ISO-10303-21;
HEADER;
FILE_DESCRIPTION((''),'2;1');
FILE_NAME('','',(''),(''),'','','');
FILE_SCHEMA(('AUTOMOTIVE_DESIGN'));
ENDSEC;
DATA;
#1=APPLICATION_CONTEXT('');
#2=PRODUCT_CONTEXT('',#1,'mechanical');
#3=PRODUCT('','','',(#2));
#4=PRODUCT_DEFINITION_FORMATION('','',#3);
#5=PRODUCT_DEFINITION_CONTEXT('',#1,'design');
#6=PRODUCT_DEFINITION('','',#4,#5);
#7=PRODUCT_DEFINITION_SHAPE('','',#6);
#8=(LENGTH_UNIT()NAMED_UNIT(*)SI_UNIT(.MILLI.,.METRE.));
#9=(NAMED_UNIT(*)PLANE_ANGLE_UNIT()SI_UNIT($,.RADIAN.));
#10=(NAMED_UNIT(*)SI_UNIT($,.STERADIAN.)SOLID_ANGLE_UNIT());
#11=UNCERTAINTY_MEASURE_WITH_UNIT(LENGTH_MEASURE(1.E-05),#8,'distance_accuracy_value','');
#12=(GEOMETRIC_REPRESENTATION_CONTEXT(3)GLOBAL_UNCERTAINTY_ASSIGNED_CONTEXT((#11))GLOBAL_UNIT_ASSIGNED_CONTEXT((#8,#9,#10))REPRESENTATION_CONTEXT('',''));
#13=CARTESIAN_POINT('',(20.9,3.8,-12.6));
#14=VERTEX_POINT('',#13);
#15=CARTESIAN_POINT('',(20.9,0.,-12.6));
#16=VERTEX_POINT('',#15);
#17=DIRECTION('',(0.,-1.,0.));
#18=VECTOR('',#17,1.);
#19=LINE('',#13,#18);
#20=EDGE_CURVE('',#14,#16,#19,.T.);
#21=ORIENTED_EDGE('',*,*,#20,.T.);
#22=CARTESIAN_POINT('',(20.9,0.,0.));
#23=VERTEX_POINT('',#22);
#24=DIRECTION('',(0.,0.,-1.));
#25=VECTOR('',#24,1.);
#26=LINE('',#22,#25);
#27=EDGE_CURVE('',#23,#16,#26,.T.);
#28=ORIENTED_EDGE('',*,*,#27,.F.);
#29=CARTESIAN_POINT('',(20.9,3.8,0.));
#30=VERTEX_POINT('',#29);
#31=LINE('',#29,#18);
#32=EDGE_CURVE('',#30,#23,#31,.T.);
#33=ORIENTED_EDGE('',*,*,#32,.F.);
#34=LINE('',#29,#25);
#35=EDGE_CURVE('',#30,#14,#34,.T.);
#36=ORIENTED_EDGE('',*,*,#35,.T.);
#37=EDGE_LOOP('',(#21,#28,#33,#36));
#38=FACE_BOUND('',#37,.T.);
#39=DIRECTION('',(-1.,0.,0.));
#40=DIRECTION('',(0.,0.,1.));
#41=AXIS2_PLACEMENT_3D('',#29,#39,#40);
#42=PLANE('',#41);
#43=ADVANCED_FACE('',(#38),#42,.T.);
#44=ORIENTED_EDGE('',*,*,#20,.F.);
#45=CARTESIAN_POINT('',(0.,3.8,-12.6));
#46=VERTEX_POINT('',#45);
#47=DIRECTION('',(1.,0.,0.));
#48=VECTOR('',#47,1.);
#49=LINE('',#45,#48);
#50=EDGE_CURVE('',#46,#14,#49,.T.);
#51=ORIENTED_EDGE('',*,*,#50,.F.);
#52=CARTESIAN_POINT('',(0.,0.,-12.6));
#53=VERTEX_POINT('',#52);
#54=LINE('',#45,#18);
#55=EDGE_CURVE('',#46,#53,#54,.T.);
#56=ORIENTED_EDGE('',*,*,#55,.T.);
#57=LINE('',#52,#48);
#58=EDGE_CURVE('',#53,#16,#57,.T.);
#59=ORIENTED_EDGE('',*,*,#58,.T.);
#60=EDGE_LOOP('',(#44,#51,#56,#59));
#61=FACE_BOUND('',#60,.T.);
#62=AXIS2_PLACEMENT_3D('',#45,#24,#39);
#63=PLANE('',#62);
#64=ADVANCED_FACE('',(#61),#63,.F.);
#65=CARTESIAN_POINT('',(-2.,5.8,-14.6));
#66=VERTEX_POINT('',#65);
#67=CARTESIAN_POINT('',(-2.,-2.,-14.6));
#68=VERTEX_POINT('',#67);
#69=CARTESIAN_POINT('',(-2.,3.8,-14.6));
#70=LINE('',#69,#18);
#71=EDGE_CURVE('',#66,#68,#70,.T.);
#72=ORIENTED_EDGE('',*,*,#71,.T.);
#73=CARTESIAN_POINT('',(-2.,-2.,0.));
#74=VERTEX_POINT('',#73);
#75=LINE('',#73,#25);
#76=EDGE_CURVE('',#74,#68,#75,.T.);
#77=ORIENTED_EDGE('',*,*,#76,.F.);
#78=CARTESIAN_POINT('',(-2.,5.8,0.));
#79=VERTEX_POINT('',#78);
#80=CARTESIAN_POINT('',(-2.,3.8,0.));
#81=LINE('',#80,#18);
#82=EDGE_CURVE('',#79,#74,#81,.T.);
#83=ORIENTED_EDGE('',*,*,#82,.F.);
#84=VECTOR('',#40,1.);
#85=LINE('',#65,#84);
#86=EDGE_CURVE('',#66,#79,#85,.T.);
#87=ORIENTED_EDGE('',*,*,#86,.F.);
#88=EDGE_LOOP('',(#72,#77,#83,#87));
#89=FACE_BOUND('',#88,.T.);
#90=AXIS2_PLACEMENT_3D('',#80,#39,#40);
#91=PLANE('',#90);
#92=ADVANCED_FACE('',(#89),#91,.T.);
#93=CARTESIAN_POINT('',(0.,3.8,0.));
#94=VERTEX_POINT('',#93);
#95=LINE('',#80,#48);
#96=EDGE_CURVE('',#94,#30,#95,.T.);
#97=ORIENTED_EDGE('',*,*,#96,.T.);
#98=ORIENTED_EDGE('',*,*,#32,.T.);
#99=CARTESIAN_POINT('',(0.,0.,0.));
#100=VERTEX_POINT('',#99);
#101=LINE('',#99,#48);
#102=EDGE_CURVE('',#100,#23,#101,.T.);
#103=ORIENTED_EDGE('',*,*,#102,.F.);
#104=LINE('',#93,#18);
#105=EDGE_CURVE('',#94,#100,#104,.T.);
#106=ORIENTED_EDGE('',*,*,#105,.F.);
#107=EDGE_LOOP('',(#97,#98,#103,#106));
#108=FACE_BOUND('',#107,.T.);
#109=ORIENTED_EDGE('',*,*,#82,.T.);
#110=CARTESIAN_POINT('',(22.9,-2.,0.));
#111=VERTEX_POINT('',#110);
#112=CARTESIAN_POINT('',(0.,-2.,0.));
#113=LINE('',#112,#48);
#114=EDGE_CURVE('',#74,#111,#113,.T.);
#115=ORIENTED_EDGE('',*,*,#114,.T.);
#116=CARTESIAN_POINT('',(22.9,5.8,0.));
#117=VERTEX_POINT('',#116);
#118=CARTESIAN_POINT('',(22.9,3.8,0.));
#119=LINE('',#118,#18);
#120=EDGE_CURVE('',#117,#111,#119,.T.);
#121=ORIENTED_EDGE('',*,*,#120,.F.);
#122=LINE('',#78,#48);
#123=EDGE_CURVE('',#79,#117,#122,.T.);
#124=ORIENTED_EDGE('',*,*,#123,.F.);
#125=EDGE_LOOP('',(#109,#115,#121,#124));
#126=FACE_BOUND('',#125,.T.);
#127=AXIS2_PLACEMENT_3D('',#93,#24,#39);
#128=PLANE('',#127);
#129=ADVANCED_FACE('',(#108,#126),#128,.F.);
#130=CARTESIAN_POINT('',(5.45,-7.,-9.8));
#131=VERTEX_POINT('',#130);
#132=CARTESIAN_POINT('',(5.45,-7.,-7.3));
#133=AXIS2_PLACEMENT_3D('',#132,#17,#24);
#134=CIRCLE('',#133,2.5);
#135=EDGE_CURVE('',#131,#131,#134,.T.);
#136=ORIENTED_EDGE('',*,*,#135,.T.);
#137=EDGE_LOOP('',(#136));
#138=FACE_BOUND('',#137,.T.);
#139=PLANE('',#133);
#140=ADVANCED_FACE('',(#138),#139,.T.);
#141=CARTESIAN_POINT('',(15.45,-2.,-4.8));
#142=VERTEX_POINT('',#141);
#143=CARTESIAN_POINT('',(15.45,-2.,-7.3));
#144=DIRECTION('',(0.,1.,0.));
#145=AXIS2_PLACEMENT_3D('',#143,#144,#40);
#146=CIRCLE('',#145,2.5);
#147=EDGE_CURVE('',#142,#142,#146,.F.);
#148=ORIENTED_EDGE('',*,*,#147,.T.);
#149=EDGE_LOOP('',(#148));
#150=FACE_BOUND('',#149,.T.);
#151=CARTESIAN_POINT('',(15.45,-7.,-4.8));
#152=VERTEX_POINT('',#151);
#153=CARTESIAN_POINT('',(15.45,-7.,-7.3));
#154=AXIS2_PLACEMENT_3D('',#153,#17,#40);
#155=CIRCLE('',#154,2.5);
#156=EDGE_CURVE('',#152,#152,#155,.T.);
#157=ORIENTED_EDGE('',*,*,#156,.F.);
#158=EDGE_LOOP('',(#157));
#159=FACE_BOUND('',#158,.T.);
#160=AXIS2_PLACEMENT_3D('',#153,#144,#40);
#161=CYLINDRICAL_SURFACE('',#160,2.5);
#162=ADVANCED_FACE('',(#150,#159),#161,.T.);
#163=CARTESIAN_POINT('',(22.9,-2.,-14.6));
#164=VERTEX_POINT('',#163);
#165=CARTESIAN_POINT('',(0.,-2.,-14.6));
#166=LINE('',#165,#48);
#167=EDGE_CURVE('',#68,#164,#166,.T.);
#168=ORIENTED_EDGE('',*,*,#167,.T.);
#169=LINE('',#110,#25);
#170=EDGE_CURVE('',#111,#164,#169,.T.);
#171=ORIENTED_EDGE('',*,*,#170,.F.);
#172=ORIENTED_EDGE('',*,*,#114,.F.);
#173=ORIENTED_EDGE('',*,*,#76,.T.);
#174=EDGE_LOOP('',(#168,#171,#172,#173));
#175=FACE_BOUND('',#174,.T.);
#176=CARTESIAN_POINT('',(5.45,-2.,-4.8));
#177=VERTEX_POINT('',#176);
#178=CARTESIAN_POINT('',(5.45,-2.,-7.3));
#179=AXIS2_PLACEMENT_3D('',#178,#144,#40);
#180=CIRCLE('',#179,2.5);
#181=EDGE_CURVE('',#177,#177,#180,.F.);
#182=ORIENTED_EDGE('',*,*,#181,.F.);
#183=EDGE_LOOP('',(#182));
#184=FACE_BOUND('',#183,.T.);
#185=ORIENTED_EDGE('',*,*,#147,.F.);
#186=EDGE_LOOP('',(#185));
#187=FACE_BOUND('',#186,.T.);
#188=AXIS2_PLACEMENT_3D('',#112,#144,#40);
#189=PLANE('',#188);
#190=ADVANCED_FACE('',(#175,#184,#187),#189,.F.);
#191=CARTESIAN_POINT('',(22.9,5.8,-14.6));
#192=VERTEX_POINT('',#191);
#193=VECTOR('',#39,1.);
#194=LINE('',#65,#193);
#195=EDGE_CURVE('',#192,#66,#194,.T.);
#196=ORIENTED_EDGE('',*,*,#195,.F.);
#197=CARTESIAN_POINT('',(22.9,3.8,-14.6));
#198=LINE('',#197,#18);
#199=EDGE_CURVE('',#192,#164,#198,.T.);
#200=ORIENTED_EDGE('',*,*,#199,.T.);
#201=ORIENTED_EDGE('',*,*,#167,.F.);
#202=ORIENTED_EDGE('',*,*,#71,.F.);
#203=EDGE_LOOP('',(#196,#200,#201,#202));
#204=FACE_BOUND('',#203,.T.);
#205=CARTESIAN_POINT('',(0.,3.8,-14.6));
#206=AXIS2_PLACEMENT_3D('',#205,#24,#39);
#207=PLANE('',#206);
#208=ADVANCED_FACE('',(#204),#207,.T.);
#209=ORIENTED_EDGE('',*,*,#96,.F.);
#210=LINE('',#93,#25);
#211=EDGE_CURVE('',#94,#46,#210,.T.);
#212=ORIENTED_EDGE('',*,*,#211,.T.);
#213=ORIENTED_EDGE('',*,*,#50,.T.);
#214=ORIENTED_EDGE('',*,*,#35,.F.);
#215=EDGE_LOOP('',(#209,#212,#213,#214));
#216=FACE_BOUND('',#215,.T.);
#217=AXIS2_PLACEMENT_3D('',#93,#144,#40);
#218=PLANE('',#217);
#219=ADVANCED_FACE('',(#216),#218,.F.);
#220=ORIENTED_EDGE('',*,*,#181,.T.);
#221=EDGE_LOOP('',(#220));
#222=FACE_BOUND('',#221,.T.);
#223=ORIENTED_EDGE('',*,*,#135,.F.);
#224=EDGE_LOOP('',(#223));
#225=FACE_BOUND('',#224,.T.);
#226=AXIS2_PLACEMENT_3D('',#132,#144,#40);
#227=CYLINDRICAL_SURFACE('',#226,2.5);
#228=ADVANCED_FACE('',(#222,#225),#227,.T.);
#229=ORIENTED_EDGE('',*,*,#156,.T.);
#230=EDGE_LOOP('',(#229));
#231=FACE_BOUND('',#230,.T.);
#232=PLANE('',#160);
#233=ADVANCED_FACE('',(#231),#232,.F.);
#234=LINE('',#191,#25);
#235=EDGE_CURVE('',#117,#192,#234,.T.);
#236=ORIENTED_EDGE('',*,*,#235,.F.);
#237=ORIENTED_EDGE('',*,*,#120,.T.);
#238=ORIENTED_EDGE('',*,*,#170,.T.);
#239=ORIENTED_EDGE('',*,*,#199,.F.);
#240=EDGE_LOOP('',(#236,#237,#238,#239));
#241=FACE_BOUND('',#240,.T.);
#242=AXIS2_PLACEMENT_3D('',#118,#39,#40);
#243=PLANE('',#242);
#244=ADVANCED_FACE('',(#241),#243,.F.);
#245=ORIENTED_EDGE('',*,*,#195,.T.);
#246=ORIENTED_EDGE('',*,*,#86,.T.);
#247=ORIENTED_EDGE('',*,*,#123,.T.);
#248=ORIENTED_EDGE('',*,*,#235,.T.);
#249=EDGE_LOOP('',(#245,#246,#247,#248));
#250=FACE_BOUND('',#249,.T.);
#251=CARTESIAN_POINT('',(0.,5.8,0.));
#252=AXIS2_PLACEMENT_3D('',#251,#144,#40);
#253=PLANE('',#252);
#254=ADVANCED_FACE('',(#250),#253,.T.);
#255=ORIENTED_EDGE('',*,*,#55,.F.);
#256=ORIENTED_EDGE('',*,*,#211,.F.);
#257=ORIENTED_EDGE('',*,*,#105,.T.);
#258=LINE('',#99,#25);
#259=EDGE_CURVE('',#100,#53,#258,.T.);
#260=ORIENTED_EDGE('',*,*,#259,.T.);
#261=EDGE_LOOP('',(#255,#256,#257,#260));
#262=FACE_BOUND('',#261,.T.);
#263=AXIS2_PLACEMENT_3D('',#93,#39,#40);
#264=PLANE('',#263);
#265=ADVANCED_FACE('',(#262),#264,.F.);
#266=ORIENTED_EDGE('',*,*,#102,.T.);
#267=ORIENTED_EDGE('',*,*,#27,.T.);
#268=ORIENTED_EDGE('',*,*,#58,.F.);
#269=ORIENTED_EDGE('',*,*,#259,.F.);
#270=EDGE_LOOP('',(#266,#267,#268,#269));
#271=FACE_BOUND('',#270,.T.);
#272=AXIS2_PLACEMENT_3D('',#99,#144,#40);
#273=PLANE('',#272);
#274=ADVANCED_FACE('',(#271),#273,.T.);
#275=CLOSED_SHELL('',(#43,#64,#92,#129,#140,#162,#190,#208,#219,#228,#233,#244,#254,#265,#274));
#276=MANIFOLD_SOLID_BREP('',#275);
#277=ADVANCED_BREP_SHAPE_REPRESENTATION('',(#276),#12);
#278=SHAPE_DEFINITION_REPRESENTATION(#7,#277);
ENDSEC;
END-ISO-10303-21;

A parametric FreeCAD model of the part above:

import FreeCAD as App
import Part
import Sketcher
from FreeCAD import Vector

doc = App.newDocument("Part")
body = doc.addObject("PartDesign::Body", "Body")

# Sketch on XZ plane
sketch1 = body.newObject("Sketcher::SketchObject", "Sketch")
sketch1.AttachmentSupport = (doc.getObject("XZ_Plane"), [""])
sketch1.MapMode = "FlatFace"
sketch1.addGeometry(Part.LineSegment(Vector(22.9, -14.6, 0), Vector(-2, -14.6, 0)), False)
sketch1.addGeometry(Part.LineSegment(Vector(-2, -14.6, 0), Vector(-2, 0, 0)), False)
sketch1.addGeometry(Part.LineSegment(Vector(-2, 0, 0), Vector(0, 0, 0)), False)
sketch1.addGeometry(Part.LineSegment(Vector(0, 0, 0), Vector(0, -12.6, 0)), False)
sketch1.addGeometry(Part.LineSegment(Vector(0, -12.6, 0), Vector(20.9, -12.6, 0)), False)
sketch1.addGeometry(Part.LineSegment(Vector(20.9, -12.6, 0), Vector(20.9, 0, 0)), False)
sketch1.addGeometry(Part.LineSegment(Vector(20.9, 0, 0), Vector(22.9, 0, 0)), False)
sketch1.addGeometry(Part.LineSegment(Vector(22.9, 0, 0), Vector(22.9, -14.6, 0)), False)
sketch1.addConstraint(Sketcher.Constraint("Coincident", 0, 2, 1, 1))
sketch1.addConstraint(Sketcher.Constraint("Coincident", 1, 2, 2, 1))
sketch1.addConstraint(Sketcher.Constraint("Coincident", 2, 2, 3, 1))
sketch1.addConstraint(Sketcher.Constraint("Coincident", 3, 2, 4, 1))
sketch1.addConstraint(Sketcher.Constraint("Coincident", 4, 2, 5, 1))
sketch1.addConstraint(Sketcher.Constraint("Coincident", 5, 2, 6, 1))
sketch1.addConstraint(Sketcher.Constraint("Coincident", 6, 2, 7, 1))
sketch1.addConstraint(Sketcher.Constraint("Coincident", 7, 2, 0, 1))
sketch1.addConstraint(Sketcher.Constraint("Horizontal", 0))
sketch1.addConstraint(Sketcher.Constraint("Vertical", 1))
sketch1.addConstraint(Sketcher.Constraint("Horizontal", 2))
sketch1.addConstraint(Sketcher.Constraint("Vertical", 3))
sketch1.addConstraint(Sketcher.Constraint("Horizontal", 4))
sketch1.addConstraint(Sketcher.Constraint("Vertical", 5))
sketch1.addConstraint(Sketcher.Constraint("Horizontal", 6))
sketch1.addConstraint(Sketcher.Constraint("Vertical", 7))
sketch1.addConstraint(Sketcher.Constraint("Coincident", 2, 2, -1, 1))
sketch1.addConstraint(Sketcher.Constraint("PointOnObject", 5, 2, -1))
sketch1.addConstraint(Sketcher.Constraint("Equal", 2, 6))
sketch1.addConstraint(Sketcher.Constraint("DistanceX", 2, 1, 2, 2, 2.0))
sketch1.addConstraint(Sketcher.Constraint("DistanceX", 0, 2, 0, 1, 24.9))
sketch1.addConstraint(Sketcher.Constraint("DistanceY", 1, 1, 1, 2, 14.6))
sketch1.addConstraint(Sketcher.Constraint("DistanceY", 3, 2, 3, 1, 12.6))
pad1 = body.newObject("PartDesign::Pad", "Pad")
pad1.Profile = sketch1
pad1.Length = 3.8
pad1.Reversed = True

# Sketch on XZ plane
sketch2 = body.newObject("Sketcher::SketchObject", "Sketch001")
sketch2.AttachmentSupport = (doc.getObject("XZ_Plane"), [""])
sketch2.MapMode = "FlatFace"
sketch2.addGeometry(Part.LineSegment(Vector(22.9, 0, 0), Vector(22.9, -14.6, 0)), False)
sketch2.addGeometry(Part.LineSegment(Vector(22.9, -14.6, 0), Vector(-2, -14.6, 0)), False)
sketch2.addGeometry(Part.LineSegment(Vector(-2, -14.6, 0), Vector(-2, 0, 0)), False)
sketch2.addGeometry(Part.LineSegment(Vector(-2, 0, 0), Vector(22.9, 0, 0)), False)
sketch2.addConstraint(Sketcher.Constraint("Coincident", 0, 2, 1, 1))
sketch2.addConstraint(Sketcher.Constraint("Coincident", 1, 2, 2, 1))
sketch2.addConstraint(Sketcher.Constraint("Coincident", 2, 2, 3, 1))
sketch2.addConstraint(Sketcher.Constraint("Coincident", 3, 2, 0, 1))
sketch2.addConstraint(Sketcher.Constraint("Vertical", 0))
sketch2.addConstraint(Sketcher.Constraint("Horizontal", 1))
sketch2.addConstraint(Sketcher.Constraint("Vertical", 2))
sketch2.addConstraint(Sketcher.Constraint("Horizontal", 3))
sketch2.addConstraint(Sketcher.Constraint("PointOnObject", 2, 2, -1))
sketch2.addConstraint(Sketcher.Constraint("DistanceX", 1, 2, 1, 1, 24.9))
sketch2.addConstraint(Sketcher.Constraint("DistanceY", 0, 2, 0, 1, 14.6))
sketch2.addConstraint(Sketcher.Constraint("DistanceX", 1, 2, -1, 1, 2.0))
pad2 = body.newObject("PartDesign::Pad", "Pad001")
pad2.Profile = sketch2
pad2.Length = 2

# Sketch on XZ plane
sketch3 = body.newObject("Sketcher::SketchObject", "Sketch002")
sketch3.AttachmentSupport = (doc.getObject("XZ_Plane"), [""])
sketch3.MapMode = "FlatFace"
sketch3.AttachmentOffset = App.Placement(Vector(0, 0, 2), App.Rotation())
sketch3.addGeometry(Part.Circle(Vector(5.45, -7.3, 0), Vector(0, 0, 1), 2.5), False)
sketch3.addGeometry(Part.Circle(Vector(15.45, -7.3, 0), Vector(0, 0, 1), 2.5), False)
sketch3.addConstraint(Sketcher.Constraint("Equal", 0, 1))
sketch3.addConstraint(Sketcher.Constraint("Horizontal", 0, 3, 1, 3))
sketch3.addConstraint(Sketcher.Constraint("Diameter", 0, 5.0))
sketch3.addConstraint(Sketcher.Constraint("DistanceX", 0, 3, 1, 3, 10.0))
sketch3.addConstraint(Sketcher.Constraint("DistanceY", 0, 3, -1, 1, 7.3))
sketch3.addConstraint(Sketcher.Constraint("DistanceX", -1, 1, 0, 3, 5.45))
pad3 = body.newObject("PartDesign::Pad", "Pad002")
pad3.Profile = sketch3
pad3.Length = 5

# Sketch on XZ plane
sketch4 = body.newObject("Sketcher::SketchObject", "Sketch003")
sketch4.AttachmentSupport = (doc.getObject("XZ_Plane"), [""])
sketch4.MapMode = "FlatFace"
sketch4.AttachmentOffset = App.Placement(Vector(0, 0, -3.8), App.Rotation())
sketch4.addGeometry(Part.LineSegment(Vector(-2, -14.6, 0), Vector(-2, 0, 0)), False)
sketch4.addGeometry(Part.LineSegment(Vector(-2, 0, 0), Vector(22.9, 0, 0)), False)
sketch4.addGeometry(Part.LineSegment(Vector(22.9, 0, 0), Vector(22.9, -14.6, 0)), False)
sketch4.addGeometry(Part.LineSegment(Vector(22.9, -14.6, 0), Vector(-2, -14.6, 0)), False)
sketch4.addConstraint(Sketcher.Constraint("Coincident", 0, 2, 1, 1))
sketch4.addConstraint(Sketcher.Constraint("Coincident", 1, 2, 2, 1))
sketch4.addConstraint(Sketcher.Constraint("Coincident", 2, 2, 3, 1))
sketch4.addConstraint(Sketcher.Constraint("Coincident", 3, 2, 0, 1))
sketch4.addConstraint(Sketcher.Constraint("Vertical", 0))
sketch4.addConstraint(Sketcher.Constraint("Horizontal", 1))
sketch4.addConstraint(Sketcher.Constraint("Vertical", 2))
sketch4.addConstraint(Sketcher.Constraint("Horizontal", 3))
sketch4.addConstraint(Sketcher.Constraint("PointOnObject", 0, 2, -1))
sketch4.addConstraint(Sketcher.Constraint("DistanceX", 1, 1, 1, 2, 24.9))
sketch4.addConstraint(Sketcher.Constraint("DistanceY", 0, 1, 0, 2, 14.6))
sketch4.addConstraint(Sketcher.Constraint("DistanceX", 0, 2, -1, 1, 2.0))
pad4 = body.newObject("PartDesign::Pad", "Pad003")
pad4.Profile = sketch4
pad4.Length = 2
pad4.Reversed = True

doc.recompute()
